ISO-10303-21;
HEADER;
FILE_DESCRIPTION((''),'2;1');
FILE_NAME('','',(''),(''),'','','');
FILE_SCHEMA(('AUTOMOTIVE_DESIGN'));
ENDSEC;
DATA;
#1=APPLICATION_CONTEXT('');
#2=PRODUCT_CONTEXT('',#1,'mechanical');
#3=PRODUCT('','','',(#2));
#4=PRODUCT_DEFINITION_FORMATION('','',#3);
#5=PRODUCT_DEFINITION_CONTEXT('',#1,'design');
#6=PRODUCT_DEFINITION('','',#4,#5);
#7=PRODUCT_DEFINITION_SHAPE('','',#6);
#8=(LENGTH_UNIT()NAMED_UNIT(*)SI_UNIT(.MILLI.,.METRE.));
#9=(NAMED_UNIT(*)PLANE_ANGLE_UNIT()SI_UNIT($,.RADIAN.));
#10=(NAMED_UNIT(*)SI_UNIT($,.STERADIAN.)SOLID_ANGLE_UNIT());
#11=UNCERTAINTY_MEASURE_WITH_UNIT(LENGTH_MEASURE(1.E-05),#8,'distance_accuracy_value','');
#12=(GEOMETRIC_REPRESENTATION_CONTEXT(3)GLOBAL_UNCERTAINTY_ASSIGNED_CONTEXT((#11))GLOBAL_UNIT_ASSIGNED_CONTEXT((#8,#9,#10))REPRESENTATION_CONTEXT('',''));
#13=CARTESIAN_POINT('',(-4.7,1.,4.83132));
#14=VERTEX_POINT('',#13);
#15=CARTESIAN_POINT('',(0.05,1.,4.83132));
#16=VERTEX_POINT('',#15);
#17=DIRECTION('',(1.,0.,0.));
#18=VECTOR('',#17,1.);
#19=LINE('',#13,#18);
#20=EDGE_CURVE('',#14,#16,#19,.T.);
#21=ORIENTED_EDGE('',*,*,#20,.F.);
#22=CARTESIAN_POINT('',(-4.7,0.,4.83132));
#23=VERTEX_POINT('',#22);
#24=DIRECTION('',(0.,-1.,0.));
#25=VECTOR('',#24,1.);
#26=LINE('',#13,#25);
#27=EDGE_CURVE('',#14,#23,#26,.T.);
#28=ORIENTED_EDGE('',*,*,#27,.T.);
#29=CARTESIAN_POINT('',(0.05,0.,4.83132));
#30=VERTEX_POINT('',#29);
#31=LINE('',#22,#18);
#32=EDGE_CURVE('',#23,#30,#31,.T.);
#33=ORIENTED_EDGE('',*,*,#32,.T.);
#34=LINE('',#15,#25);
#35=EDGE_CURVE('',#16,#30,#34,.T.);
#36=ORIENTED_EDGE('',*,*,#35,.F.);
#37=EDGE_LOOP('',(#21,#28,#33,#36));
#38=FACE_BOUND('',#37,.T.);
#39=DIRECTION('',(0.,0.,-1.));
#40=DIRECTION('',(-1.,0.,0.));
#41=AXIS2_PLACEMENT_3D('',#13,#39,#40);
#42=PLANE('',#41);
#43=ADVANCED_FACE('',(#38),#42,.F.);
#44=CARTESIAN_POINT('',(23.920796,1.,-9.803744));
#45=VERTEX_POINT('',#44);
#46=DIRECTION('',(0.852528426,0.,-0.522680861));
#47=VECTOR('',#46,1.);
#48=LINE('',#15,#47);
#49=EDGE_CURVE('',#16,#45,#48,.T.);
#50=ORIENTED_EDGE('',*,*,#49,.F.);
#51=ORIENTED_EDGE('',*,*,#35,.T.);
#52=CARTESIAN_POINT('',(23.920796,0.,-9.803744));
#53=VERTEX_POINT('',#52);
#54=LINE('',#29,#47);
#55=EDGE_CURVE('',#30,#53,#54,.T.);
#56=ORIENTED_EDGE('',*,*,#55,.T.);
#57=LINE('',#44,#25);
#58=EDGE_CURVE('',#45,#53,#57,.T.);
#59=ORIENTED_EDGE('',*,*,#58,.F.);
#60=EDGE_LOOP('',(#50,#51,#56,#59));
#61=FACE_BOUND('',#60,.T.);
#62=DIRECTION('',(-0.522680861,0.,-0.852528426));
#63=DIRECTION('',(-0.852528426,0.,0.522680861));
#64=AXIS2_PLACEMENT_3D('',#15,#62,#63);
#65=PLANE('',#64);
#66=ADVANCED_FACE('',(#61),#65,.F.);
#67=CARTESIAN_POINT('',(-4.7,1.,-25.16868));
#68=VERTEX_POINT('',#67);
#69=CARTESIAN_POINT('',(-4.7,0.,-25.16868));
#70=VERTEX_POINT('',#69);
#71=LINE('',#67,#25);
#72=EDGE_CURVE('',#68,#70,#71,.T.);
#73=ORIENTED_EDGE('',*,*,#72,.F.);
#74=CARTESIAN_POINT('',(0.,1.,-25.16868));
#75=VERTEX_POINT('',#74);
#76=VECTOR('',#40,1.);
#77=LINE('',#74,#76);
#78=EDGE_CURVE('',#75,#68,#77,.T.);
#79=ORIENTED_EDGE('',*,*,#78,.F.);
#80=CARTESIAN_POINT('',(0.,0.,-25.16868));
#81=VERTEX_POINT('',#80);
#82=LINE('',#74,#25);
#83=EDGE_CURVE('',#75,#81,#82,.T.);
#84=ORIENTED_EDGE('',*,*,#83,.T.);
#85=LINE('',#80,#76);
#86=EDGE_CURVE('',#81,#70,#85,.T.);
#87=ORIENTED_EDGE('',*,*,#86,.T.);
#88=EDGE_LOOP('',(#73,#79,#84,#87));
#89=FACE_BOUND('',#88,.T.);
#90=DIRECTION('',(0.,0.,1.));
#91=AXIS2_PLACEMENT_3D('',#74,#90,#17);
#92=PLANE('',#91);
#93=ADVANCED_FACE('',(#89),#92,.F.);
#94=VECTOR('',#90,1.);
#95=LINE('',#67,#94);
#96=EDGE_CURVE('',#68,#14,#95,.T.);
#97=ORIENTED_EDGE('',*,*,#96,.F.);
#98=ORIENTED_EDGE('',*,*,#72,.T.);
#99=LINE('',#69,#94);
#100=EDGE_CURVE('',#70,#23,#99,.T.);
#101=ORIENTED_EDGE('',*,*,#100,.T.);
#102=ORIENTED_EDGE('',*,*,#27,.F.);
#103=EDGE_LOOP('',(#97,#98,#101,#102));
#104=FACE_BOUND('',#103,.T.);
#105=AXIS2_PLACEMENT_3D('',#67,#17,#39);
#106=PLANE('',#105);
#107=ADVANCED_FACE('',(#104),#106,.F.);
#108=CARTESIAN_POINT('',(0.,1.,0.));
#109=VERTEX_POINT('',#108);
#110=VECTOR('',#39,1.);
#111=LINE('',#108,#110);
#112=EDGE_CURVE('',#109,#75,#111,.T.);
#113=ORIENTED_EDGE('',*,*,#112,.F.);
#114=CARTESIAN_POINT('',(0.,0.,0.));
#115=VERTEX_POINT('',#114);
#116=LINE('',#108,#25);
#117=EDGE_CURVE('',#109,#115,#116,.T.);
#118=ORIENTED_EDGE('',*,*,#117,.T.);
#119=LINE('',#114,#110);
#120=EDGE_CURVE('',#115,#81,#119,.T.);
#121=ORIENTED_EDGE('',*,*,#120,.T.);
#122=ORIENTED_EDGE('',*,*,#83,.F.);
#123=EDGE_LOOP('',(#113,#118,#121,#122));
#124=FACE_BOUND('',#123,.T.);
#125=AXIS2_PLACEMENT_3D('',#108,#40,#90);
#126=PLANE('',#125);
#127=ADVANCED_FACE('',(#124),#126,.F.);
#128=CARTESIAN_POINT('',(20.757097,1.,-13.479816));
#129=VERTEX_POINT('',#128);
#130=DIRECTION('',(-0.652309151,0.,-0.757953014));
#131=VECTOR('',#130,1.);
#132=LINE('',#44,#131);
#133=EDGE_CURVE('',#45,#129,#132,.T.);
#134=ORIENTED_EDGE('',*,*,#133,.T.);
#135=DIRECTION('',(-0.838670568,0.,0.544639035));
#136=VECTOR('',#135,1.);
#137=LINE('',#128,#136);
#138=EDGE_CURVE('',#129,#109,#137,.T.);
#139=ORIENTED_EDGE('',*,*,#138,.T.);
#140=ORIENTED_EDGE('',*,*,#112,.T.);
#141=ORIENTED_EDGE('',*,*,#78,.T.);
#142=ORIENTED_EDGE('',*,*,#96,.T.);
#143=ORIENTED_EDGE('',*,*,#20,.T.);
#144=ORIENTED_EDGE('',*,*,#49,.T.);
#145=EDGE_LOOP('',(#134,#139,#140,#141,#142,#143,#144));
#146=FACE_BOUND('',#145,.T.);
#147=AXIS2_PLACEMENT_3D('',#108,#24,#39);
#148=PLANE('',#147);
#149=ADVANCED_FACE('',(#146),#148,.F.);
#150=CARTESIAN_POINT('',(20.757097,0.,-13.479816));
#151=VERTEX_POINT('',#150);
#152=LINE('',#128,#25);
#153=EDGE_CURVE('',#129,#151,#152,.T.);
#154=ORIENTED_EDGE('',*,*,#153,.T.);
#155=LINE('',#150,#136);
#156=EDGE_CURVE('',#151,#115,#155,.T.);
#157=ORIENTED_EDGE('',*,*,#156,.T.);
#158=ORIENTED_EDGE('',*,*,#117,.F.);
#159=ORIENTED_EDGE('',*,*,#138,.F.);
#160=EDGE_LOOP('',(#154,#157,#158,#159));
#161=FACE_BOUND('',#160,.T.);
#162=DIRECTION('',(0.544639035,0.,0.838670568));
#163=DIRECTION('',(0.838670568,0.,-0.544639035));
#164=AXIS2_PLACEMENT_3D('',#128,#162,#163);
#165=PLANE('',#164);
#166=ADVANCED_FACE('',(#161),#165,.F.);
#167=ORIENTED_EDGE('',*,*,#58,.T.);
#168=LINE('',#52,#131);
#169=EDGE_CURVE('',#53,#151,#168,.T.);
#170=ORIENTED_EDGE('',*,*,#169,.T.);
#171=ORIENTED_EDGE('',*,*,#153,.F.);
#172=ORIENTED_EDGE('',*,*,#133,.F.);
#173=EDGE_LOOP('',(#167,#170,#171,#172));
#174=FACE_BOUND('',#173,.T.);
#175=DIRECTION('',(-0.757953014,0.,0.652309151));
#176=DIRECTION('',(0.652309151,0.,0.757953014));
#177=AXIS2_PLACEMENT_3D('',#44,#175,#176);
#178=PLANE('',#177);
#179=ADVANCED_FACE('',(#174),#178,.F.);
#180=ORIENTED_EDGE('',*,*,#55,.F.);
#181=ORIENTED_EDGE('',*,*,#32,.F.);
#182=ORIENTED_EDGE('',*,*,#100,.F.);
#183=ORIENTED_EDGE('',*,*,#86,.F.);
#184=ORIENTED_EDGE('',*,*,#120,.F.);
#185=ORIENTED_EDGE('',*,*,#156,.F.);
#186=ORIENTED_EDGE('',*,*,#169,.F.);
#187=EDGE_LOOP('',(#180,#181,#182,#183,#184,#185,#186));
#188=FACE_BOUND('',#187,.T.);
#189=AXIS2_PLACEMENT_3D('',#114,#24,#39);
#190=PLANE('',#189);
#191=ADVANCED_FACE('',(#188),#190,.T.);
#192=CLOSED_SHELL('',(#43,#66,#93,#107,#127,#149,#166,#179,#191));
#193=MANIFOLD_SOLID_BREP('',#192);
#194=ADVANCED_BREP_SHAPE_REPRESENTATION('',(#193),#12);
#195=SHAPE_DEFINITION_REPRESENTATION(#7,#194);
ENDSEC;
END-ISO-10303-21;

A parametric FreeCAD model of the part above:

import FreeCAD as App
import Part
import Sketcher
Q = App.Units.Quantity

doc = App.newDocument("Part")
params = doc.addObject("Spreadsheet::Sheet", "Params")
for row, (alias, value) in enumerate([
    ("sketch1_height", "30 mm"),
    ("sketch1_length", "28 mm"),
    ("sketch1_width", "4.7 mm"),
    ("sketch1_width2", "4.75 mm"),
    ("sketch1_length2", "4.85 mm"),
    ("pad1_length", "1 mm"),
], start=1):
    params.set(f"A{row}", alias)
    params.set(f"B{row}", "=" + value)
    params.setAlias(f"B{row}", alias)

body = doc.addObject("PartDesign::Body", "Body")

# Sketch on XZ plane
sketch1 = body.newObject("Sketcher::SketchObject", "Sketch")
sketch1.AttachmentSupport = (doc.getObject("XZ_Plane"), [""])
sketch1.MapMode = "FlatFace"
sketch1.addGeometry([
    Part.LineSegment(App.Vector(0, 0, 0), App.Vector(0, -25.16868, 0)),  # 0
    Part.LineSegment(App.Vector(0, -25.16868, 0), App.Vector(-4.7, -25.16868, 0)),  # 1
    Part.LineSegment(App.Vector(-4.7, -25.16868, 0), App.Vector(-4.7, 4.83132, 0)),  # 2
    Part.LineSegment(App.Vector(-4.7, 4.83132, 0), App.Vector(0.05, 4.83132, 0)),  # 3
    Part.LineSegment(App.Vector(0.05, 4.83132, 0), App.Vector(23.920796, -9.803744, 0)),  # 4
    Part.LineSegment(App.Vector(23.920796, -9.803744, 0), App.Vector(20.757097, -13.479816, 0)),  # 5
    Part.LineSegment(App.Vector(20.757097, -13.479816, 0), App.Vector(0, 0, 0)),  # 6
], False)
sketch1.addConstraint([
    Sketcher.Constraint("Coincident", 0, 2, 1, 1),
    Sketcher.Constraint("Coincident", 1, 2, 2, 1),
    Sketcher.Constraint("Coincident", 2, 2, 3, 1),
    Sketcher.Constraint("Coincident", 3, 2, 4, 1),
    Sketcher.Constraint("Coincident", 4, 2, 5, 1),
    Sketcher.Constraint("Coincident", 5, 2, 6, 1),
    Sketcher.Constraint("Coincident", 6, 2, 0, 1),
    Sketcher.Constraint("Vertical", 0),
    Sketcher.Constraint("Horizontal", 1),
    Sketcher.Constraint("Vertical", 2),
    Sketcher.Constraint("Horizontal", 3),
    Sketcher.Constraint("Coincident", 6, 2, -1, 1),
    Sketcher.Constraint("DistanceY", 2, 1, 2, 2, Q("30 mm")),
    Sketcher.Constraint("Angle", 6, Q("147 deg")),
    Sketcher.Constraint("Distance", 4, Q("28 mm")),
    Sketcher.Constraint("DistanceX", 1, 2, 1, 1, Q("4.7 mm")),
    Sketcher.Constraint("DistanceX", 3, 1, 3, 2, Q("4.75 mm")),
    Sketcher.Constraint("Distance", 5, Q("4.85 mm")),
    Sketcher.Constraint("Distance", 6, Q("24.75 mm")),
    Sketcher.Constraint("DistanceY", 0, 2, 0, 1, Q("25.16868 mm")),
])
sketch1.setExpression("Constraints[12]", "Params.sketch1_height")
sketch1.setExpression("Constraints[14]", "Params.sketch1_length")
sketch1.setExpression("Constraints[15]", "Params.sketch1_width")
sketch1.setExpression("Constraints[16]", "Params.sketch1_width2")
sketch1.setExpression("Constraints[17]", "Params.sketch1_length2")
pad1 = body.newObject("PartDesign::Pad", "Pad")
pad1.Profile = sketch1
pad1.setExpression("Length", "Params.pad1_length")
pad1.Reversed = True

doc.recompute()
